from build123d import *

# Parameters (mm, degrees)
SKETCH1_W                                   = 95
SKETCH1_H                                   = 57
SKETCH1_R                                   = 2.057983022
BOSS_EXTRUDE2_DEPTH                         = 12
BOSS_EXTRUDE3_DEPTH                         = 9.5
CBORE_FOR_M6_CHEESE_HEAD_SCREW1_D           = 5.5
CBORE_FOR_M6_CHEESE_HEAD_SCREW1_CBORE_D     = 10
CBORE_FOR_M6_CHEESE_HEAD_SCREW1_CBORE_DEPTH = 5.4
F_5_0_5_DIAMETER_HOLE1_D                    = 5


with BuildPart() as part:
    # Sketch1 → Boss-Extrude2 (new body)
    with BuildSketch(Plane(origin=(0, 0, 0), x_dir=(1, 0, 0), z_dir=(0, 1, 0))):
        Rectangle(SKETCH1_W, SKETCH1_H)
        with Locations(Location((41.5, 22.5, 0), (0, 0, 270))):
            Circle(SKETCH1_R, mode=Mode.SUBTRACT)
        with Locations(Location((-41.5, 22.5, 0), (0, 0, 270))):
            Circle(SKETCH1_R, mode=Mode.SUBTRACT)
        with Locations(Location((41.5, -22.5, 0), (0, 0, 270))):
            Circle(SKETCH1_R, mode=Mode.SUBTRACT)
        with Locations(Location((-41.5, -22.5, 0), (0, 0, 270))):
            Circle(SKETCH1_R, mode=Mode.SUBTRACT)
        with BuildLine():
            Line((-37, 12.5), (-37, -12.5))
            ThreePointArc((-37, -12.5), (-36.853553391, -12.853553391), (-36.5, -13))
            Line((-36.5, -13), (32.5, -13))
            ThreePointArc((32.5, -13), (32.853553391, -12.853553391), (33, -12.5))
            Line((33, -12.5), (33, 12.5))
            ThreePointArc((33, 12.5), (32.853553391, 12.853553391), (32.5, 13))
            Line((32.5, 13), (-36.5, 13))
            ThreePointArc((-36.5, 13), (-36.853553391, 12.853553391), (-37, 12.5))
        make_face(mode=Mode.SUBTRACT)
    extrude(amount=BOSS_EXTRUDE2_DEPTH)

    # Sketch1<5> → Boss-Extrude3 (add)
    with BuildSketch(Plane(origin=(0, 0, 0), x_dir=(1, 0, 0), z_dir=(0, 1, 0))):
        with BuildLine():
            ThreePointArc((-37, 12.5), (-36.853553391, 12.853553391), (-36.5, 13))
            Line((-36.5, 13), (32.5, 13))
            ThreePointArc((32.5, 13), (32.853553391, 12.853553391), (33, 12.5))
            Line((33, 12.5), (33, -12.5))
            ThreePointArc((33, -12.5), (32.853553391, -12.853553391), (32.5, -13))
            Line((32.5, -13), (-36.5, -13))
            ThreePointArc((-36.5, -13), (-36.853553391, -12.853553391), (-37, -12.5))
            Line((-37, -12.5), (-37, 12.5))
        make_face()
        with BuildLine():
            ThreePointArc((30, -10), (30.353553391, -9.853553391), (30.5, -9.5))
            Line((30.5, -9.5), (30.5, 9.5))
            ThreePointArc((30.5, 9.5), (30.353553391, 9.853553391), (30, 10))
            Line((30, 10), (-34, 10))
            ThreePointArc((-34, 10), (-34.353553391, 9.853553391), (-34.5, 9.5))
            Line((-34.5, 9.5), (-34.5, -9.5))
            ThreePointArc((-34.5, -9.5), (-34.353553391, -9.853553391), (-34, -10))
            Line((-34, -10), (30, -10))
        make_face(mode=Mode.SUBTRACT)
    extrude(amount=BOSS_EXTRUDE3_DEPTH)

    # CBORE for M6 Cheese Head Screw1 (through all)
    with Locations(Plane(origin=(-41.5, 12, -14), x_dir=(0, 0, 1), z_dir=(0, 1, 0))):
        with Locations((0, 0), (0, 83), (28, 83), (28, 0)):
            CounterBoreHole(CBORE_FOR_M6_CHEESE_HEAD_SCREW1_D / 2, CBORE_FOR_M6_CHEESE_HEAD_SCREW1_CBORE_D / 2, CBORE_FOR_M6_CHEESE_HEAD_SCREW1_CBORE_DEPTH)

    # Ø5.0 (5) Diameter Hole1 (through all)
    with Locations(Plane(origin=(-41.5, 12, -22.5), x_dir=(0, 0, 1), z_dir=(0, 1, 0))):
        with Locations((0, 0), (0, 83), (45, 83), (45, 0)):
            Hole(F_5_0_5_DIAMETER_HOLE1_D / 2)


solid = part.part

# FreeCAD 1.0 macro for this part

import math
import FreeCAD as App
import Part
import Sketcher
from FreeCAD import Vector


def add_polygon(sketch, points):
    """Adds a closed chain of lines whose ends are joined by coincident constraints."""
    first, n = sketch.GeometryCount, len(points)
    for a, b in zip(points, points[1:] + points[:1]):
        sketch.addGeometry(Part.LineSegment(App.Vector(*a, 0), App.Vector(*b, 0)), False)
    for i in range(n):
        sketch.addConstraint(Sketcher.Constraint("Coincident", first + i, 2, first + (i + 1) % n, 1))

doc = App.newDocument("Part")
body = doc.addObject("PartDesign::Body", "Body")

# Sketch on XZ plane
sketch1 = body.newObject("Sketcher::SketchObject", "Sketch")
sketch1.AttachmentSupport = (doc.getObject("XZ_Plane"), [""])
sketch1.MapMode = "FlatFace"
add_polygon(sketch1, [(-47.5, -28.5), (-47.5, 28.5), (47.5, 28.5), (47.5, -28.5)])  # lines 0-3
sketch1.addGeometry(Part.Circle(Vector(-41.5, 22.5, 0), Vector(0, 0, 1), 2.06), False)  # 4
sketch1.addGeometry(Part.Circle(Vector(41.5, 22.5, 0), Vector(0, 0, 1), 2.06), False)  # 5
sketch1.addGeometry(Part.LineSegment(Vector(-37, 12.5, 0), Vector(-37, -12.5, 0)), False)  # 6
sketch1.addGeometry(Part.ArcOfCircle(Part.Circle(Vector(-36.5, -12.5, 0), Vector(0, 0, 1), 0.5), math.radians(180), math.radians(270)), False)  # 7
sketch1.addGeometry(Part.LineSegment(Vector(-36.5, -13, 0), Vector(32.5, -13, 0)), False)  # 8
sketch1.addGeometry(Part.ArcOfCircle(Part.Circle(Vector(32.5, -12.5, 0), Vector(0, 0, 1), 0.5), math.radians(-90), math.radians(0)), False)  # 9
sketch1.addGeometry(Part.LineSegment(Vector(33, -12.5, 0), Vector(33, 12.5, 0)), False)  # 10
sketch1.addGeometry(Part.ArcOfCircle(Part.Circle(Vector(32.5, 12.5, 0), Vector(0, 0, 1), 0.5), math.radians(0), math.radians(90)), False)  # 11
sketch1.addGeometry(Part.LineSegment(Vector(32.5, 13, 0), Vector(-36.5, 13, 0)), False)  # 12
sketch1.addGeometry(Part.ArcOfCircle(Part.Circle(Vector(-36.5, 12.5, 0), Vector(0, 0, 1), 0.5), math.radians(90), math.radians(180)), False)  # 13
sketch1.addGeometry(Part.Circle(Vector(-41.5, -22.5, 0), Vector(0, 0, 1), 2.06), False)  # 14
sketch1.addGeometry(Part.Circle(Vector(41.5, -22.5, 0), Vector(0, 0, 1), 2.06), False)  # 15
sketch1.addConstraint([
    Sketcher.Constraint("Tangent", 6, 2, 7, 1),
    Sketcher.Constraint("Tangent", 7, 2, 8, 1),
    Sketcher.Constraint("Tangent", 8, 2, 9, 1),
    Sketcher.Constraint("Tangent", 9, 2, 10, 1),
    Sketcher.Constraint("Tangent", 10, 2, 11, 1),
    Sketcher.Constraint("Tangent", 11, 2, 12, 1),
    Sketcher.Constraint("Tangent", 12, 2, 13, 1),
    Sketcher.Constraint("Tangent", 13, 2, 6, 1),
    Sketcher.Constraint("Vertical", 0),
    Sketcher.Constraint("Horizontal", 1),
    Sketcher.Constraint("Vertical", 2),
    Sketcher.Constraint("Horizontal", 3),
    Sketcher.Constraint("Vertical", 6),
    Sketcher.Constraint("Horizontal", 8),
    Sketcher.Constraint("Vertical", 10),
    Sketcher.Constraint("Horizontal", 12),
    Sketcher.Constraint("Equal", 4, 5),
    Sketcher.Constraint("Equal", 7, 9),
    Sketcher.Constraint("Equal", 9, 11),
    Sketcher.Constraint("Equal", 11, 13),
    Sketcher.Constraint("Equal", 5, 14),
    Sketcher.Constraint("Equal", 14, 15),
    Sketcher.Constraint("Symmetric", 5, 3, 14, 3, -1, 1),
    Sketcher.Constraint("Symmetric", 4, 3, 15, 3, -1, 1),
    Sketcher.Constraint("Symmetric", 0, 2, 2, 2, -1, 1),
    Sketcher.Constraint("Symmetric", 4, 3, 5, 3, -2),
    Sketcher.Constraint("Radius", 7, 0.5),
    Sketcher.Constraint("DistanceX", 1, 1, 1, 2, 95.0),
    Sketcher.Constraint("DistanceX", 8, 1, 8, 2, 69.0),
    Sketcher.Constraint("DistanceY", 0, 1, 0, 2, 57.0),
    Sketcher.Constraint("DistanceY", 6, 2, 6, 1, 25.0),
    Sketcher.Constraint("DistanceX", 6, 2, -1, 1, 37.0),
    Sketcher.Constraint("DistanceY", 7, 2, -1, 1, 13.0),
    Sketcher.Constraint("DistanceX", 4, 3, 5, 3, 83.0),
    Sketcher.Constraint("DistanceY", 7, 3, 4, 3, 35.0),
    Sketcher.Constraint("Diameter", 4, 4.115966),
])
pad1 = body.newObject("PartDesign::Pad", "Pad")
pad1.Profile = sketch1
pad1.Length = 12
pad1.Reversed = True

# Sketch on XZ plane
sketch2 = body.newObject("Sketcher::SketchObject", "Sketch001")
sketch2.AttachmentSupport = (doc.getObject("XZ_Plane"), [""])
sketch2.MapMode = "FlatFace"
sketch2.addGeometry([
    Part.ArcOfCircle(Part.Circle(Vector(-36.5, -12.5, 0), Vector(0, 0, 1), 0.5), math.radians(180), math.radians(270)),  # 0
    Part.LineSegment(Vector(-37, -12.5, 0), Vector(-37, 12.5, 0)),  # 1
    Part.ArcOfCircle(Part.Circle(Vector(-36.5, 12.5, 0), Vector(0, 0, 1), 0.5), math.radians(90), math.radians(180)),  # 2
    Part.LineSegment(Vector(-36.5, 13, 0), Vector(32.5, 13, 0)),  # 3
    Part.ArcOfCircle(Part.Circle(Vector(32.5, 12.5, 0), Vector(0, 0, 1), 0.5), math.radians(0), math.radians(90)),  # 4
    Part.LineSegment(Vector(33, 12.5, 0), Vector(33, -12.5, 0)),  # 5
    Part.ArcOfCircle(Part.Circle(Vector(32.5, -12.5, 0), Vector(0, 0, 1), 0.5), math.radians(-90), math.radians(0)),  # 6
    Part.LineSegment(Vector(32.5, -13, 0), Vector(-36.5, -13, 0)),  # 7
    Part.LineSegment(Vector(30, 10, 0), Vector(-34, 10, 0)),  # 8
    Part.ArcOfCircle(Part.Circle(Vector(-34, 9.5, 0), Vector(0, 0, 1), 0.5), math.radians(90), math.radians(180)),  # 9
    Part.LineSegment(Vector(-34.5, 9.5, 0), Vector(-34.5, -9.5, 0)),  # 10
    Part.ArcOfCircle(Part.Circle(Vector(-34, -9.5, 0), Vector(0, 0, 1), 0.5), math.radians(180), math.radians(270)),  # 11
    Part.LineSegment(Vector(-34, -10, 0), Vector(30, -10, 0)),  # 12
    Part.ArcOfCircle(Part.Circle(Vector(30, -9.5, 0), Vector(0, 0, 1), 0.5), math.radians(-90), math.radians(0)),  # 13
    Part.LineSegment(Vector(30.5, -9.5, 0), Vector(30.5, 9.5, 0)),  # 14
    Part.ArcOfCircle(Part.Circle(Vector(30, 9.5, 0), Vector(0, 0, 1), 0.5), math.radians(0), math.radians(90)),  # 15
], False)
sketch2.addConstraint([
    Sketcher.Constraint("Tangent", 0, 1, 1, 1),
    Sketcher.Constraint("Tangent", 1, 2, 2, 2),
    Sketcher.Constraint("Tangent", 2, 1, 3, 1),
    Sketcher.Constraint("Tangent", 3, 2, 4, 2),
    Sketcher.Constraint("Tangent", 4, 1, 5, 1),
    Sketcher.Constraint("Tangent", 5, 2, 6, 2),
    Sketcher.Constraint("Tangent", 6, 1, 7, 1),
    Sketcher.Constraint("Tangent", 7, 2, 0, 2),
    Sketcher.Constraint("Tangent", 8, 2, 9, 1),
    Sketcher.Constraint("Tangent", 9, 2, 10, 1),
    Sketcher.Constraint("Tangent", 10, 2, 11, 1),
    Sketcher.Constraint("Tangent", 11, 2, 12, 1),
    Sketcher.Constraint("Tangent", 12, 2, 13, 1),
    Sketcher.Constraint("Tangent", 13, 2, 14, 1),
    Sketcher.Constraint("Tangent", 14, 2, 15, 1),
    Sketcher.Constraint("Tangent", 15, 2, 8, 1),
    Sketcher.Constraint("Vertical", 1),
    Sketcher.Constraint("Horizontal", 3),
    Sketcher.Constraint("Vertical", 5),
    Sketcher.Constraint("Horizontal", 7),
    Sketcher.Constraint("Horizontal", 8),
    Sketcher.Constraint("Vertical", 10),
    Sketcher.Constraint("Horizontal", 12),
    Sketcher.Constraint("Vertical", 14),
    Sketcher.Constraint("Equal", 0, 2),
    Sketcher.Constraint("Equal", 2, 4),
    Sketcher.Constraint("Equal", 4, 6),
    Sketcher.Constraint("Equal", 6, 9),
    Sketcher.Constraint("Equal", 9, 11),
    Sketcher.Constraint("Equal", 11, 13),
    Sketcher.Constraint("Equal", 13, 15),
    Sketcher.Constraint("Radius", 0, 0.5),
    Sketcher.Constraint("DistanceX", 3, 1, 3, 2, 69.0),
    Sketcher.Constraint("DistanceX", 8, 2, 8, 1, 64.0),
    Sketcher.Constraint("DistanceY", 1, 1, 1, 2, 25.0),
    Sketcher.Constraint("DistanceY", 10, 2, 10, 1, 19.0),
    Sketcher.Constraint("DistanceX", 9, 3, -1, 1, 34.0),
    Sketcher.Constraint("DistanceX", 0, 1, -1, 1, 37.0),
    Sketcher.Constraint("DistanceY", -1, 1, 2, 1, 13.0),
    Sketcher.Constraint("DistanceY", -1, 1, 8, 2, 10.0),
])
pad2 = body.newObject("PartDesign::Pad", "Pad001")
pad2.Profile = sketch2
pad2.Length = 9.5
pad2.Reversed = True

# Sketch on XZ plane
sketch3 = body.newObject("Sketcher::SketchObject", "Sketch002")
sketch3.AttachmentSupport = (doc.getObject("XZ_Plane"), [""])
sketch3.MapMode = "FlatFace"
sketch3.AttachmentOffset = App.Placement(Vector(0, 0, -12), App.Rotation())
sketch3.addGeometry([
    Part.Circle(Vector(-41.5, -14, 0), Vector(0, 0, 1), 2.8),
    Part.Circle(Vector(41.5, -14, 0), Vector(0, 0, 1), 2.8),
    Part.Circle(Vector(41.5, 14, 0), Vector(0, 0, 1), 2.8),
    Part.Circle(Vector(-41.5, 14, 0), Vector(0, 0, 1), 2.8),
], False)
sketch3.addConstraint([
    Sketcher.Constraint("Equal", 0, 1),
    Sketcher.Constraint("Equal", 1, 2),
    Sketcher.Constraint("Equal", 2, 3),
    Sketcher.Constraint("Symmetric", 0, 3, 2, 3, -1, 1),
    Sketcher.Constraint("Symmetric", 1, 3, 3, 3, -1, 1),
    Sketcher.Constraint("Symmetric", 0, 3, 1, 3, -2),
    Sketcher.Constraint("Diameter", 0, 5.5),
    Sketcher.Constraint("DistanceY", 0, 3, -1, 1, 14.0),
    Sketcher.Constraint("DistanceX", 0, 3, 1, 3, 83.0),
])
doc.recompute()
hole = body.newObject("PartDesign::Hole", "Hole")
hole.Profile = sketch3
hole.ThreadType = "None"
hole.Diameter = 5.5
hole.DepthType = "ThroughAll"
hole.HoleCutType = "Counterbore"
hole.HoleCutDiameter = 10
hole.HoleCutDepth = 5.4
hole.Reversed = True

# Sketch on XZ plane
sketch4 = body.newObject("Sketcher::SketchObject", "Sketch003")
sketch4.AttachmentSupport = (doc.getObject("XZ_Plane"), [""])
sketch4.MapMode = "FlatFace"
sketch4.AttachmentOffset = App.Placement(Vector(0, 0, -12), App.Rotation())
sketch4.addGeometry([
    Part.Circle(Vector(-41.5, -22.5, 0), Vector(0, 0, 1), 2.5),
    Part.Circle(Vector(41.5, -22.5, 0), Vector(0, 0, 1), 2.5),
    Part.Circle(Vector(41.5, 22.5, 0), Vector(0, 0, 1), 2.5),
    Part.Circle(Vector(-41.5, 22.5, 0), Vector(0, 0, 1), 2.5),
], False)
sketch4.addConstraint([
    Sketcher.Constraint("Equal", 0, 1),
    Sketcher.Constraint("Equal", 1, 2),
    Sketcher.Constraint("Equal", 2, 3),
    Sketcher.Constraint("Symmetric", 0, 3, 2, 3, -1, 1),
    Sketcher.Constraint("Symmetric", 1, 3, 3, 3, -1, 1),
    Sketcher.Constraint("Symmetric", 0, 3, 1, 3, -2),
    Sketcher.Constraint("Diameter", 0, 5.0),
    Sketcher.Constraint("DistanceX", 0, 3, 1, 3, 83.0),
    Sketcher.Constraint("DistanceY", 1, 3, 2, 3, 45.0),
])
doc.recompute()
hole2 = body.newObject("PartDesign::Hole", "Hole001")
hole2.Profile = sketch4
hole2.ThreadType = "None"
hole2.Diameter = 5
hole2.DepthType = "ThroughAll"
hole2.Reversed = True

doc.recompute()
